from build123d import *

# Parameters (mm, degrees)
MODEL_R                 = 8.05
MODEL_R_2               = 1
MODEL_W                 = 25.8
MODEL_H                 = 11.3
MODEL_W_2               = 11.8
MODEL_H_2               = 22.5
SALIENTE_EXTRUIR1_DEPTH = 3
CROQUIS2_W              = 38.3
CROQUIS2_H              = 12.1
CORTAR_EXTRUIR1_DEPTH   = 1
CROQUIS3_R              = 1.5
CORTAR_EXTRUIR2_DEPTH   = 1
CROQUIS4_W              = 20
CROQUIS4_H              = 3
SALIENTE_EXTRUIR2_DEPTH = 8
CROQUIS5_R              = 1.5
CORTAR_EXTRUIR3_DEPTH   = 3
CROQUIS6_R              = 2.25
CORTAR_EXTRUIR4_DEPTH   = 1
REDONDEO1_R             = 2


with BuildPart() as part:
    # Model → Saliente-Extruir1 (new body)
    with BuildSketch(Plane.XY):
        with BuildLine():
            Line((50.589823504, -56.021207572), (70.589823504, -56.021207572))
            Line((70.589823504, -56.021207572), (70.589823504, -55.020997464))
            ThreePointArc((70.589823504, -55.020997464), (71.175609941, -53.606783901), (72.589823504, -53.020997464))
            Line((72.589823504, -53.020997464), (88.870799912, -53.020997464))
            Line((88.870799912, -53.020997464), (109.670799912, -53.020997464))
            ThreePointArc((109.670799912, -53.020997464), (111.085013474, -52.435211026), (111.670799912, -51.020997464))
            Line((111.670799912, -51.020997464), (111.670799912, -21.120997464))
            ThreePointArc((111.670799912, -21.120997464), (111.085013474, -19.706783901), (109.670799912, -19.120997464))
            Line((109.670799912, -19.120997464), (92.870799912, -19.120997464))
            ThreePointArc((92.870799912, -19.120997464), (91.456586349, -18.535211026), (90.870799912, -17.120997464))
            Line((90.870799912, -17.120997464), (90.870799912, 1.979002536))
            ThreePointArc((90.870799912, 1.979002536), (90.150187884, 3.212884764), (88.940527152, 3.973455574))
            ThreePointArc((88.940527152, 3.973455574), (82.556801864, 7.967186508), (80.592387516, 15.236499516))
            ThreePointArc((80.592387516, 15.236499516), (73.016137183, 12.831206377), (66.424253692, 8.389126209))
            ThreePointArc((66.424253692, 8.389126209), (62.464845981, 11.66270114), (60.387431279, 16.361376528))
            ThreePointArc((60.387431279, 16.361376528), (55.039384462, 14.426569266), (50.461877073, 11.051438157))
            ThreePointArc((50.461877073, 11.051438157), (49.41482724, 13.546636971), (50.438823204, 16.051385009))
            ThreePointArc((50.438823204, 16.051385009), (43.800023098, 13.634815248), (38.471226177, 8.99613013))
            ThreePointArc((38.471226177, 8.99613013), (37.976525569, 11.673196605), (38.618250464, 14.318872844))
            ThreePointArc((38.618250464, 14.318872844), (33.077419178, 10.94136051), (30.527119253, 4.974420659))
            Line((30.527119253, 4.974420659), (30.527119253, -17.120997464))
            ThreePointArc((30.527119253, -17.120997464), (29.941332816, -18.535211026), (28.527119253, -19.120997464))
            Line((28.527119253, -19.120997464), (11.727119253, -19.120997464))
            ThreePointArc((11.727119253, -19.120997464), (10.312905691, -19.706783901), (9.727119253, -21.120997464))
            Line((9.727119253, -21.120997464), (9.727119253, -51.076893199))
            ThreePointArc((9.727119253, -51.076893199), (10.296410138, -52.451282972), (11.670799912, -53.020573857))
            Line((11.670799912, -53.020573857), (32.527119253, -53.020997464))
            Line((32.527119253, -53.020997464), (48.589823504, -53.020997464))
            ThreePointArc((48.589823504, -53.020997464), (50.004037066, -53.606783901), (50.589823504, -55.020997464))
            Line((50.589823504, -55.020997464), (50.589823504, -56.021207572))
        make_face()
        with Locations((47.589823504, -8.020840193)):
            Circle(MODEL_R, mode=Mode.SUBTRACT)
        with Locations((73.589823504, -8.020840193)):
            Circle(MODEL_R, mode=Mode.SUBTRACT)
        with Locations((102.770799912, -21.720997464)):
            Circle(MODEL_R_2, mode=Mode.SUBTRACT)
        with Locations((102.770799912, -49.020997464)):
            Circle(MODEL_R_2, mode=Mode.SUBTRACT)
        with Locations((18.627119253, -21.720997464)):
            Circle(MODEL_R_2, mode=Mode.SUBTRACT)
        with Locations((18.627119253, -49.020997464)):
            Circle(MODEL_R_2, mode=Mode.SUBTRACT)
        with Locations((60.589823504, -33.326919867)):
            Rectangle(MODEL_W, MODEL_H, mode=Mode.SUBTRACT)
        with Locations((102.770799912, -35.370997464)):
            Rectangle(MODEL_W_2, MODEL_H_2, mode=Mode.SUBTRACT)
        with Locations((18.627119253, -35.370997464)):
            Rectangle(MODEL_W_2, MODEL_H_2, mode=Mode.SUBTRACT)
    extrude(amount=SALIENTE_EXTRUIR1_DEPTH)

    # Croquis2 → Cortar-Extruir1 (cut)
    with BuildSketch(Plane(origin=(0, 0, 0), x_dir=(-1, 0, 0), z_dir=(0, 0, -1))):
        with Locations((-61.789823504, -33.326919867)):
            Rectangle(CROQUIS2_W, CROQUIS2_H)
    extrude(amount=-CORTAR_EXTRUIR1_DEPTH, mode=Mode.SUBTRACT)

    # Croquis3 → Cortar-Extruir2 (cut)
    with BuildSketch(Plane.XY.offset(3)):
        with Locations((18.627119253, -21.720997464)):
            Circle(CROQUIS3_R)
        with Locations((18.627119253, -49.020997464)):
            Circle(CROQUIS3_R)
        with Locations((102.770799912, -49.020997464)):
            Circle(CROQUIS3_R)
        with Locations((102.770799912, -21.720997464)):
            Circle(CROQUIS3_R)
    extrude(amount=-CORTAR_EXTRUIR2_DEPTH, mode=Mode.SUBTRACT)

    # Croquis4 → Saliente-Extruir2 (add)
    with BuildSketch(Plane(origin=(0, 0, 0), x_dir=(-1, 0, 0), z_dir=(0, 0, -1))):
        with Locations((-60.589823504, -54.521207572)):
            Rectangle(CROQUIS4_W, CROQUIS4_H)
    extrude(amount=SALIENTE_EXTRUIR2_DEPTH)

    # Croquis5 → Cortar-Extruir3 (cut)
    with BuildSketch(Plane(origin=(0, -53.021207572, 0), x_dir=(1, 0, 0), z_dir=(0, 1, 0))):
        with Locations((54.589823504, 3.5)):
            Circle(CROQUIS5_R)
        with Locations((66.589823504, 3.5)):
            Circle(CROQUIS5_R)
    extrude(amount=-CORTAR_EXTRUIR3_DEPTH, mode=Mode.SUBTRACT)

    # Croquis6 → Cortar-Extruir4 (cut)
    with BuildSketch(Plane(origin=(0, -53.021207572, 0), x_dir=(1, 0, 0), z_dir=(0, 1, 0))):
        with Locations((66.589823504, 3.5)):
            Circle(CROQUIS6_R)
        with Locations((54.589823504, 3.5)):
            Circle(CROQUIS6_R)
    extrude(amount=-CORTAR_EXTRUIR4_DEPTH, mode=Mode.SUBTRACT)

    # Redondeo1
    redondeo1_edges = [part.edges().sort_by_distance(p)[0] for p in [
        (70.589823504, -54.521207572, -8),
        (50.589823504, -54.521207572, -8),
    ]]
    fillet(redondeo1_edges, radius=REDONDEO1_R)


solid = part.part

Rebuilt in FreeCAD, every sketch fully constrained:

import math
import FreeCAD as App
import Part
import Sketcher
from FreeCAD import Vector
Q = App.Units.Quantity


def edges_at(feature, points):
    """Names of the edges that pass closest to the given points."""
    edges = feature.Shape.Edges
    near = lambda p: min(range(len(edges)), key=lambda i: edges[i].distToShape(Part.Vertex(*p))[0])
    return sorted({f"Edge{near(p) + 1}" for p in points})


def add_polygon(sketch, points):
    """Adds a closed chain of lines whose ends are joined by coincident constraints."""
    first, n = sketch.GeometryCount, len(points)
    for a, b in zip(points, points[1:] + points[:1]):
        sketch.addGeometry(Part.LineSegment(App.Vector(*a, 0), App.Vector(*b, 0)), False)
    for i in range(n):
        sketch.addConstraint(Sketcher.Constraint("Coincident", first + i, 2, first + (i + 1) % n, 1))

doc = App.newDocument("Part")
params = doc.addObject("Spreadsheet::Sheet", "Params")
for row, (alias, value) in enumerate([
    ("sketch1_diameter", "2 mm"),
    ("sketch1_radius", "2 mm"),
    ("sketch1_radius2", "3 mm"),
    ("sketch1_diameter2", "16.1 mm"),
    ("sketch1_width", "20 mm"),
    ("pad1_length", "3 mm"),
    ("sketch2_width", "38.3 mm"),
    ("sketch2_height", "12.1 mm"),
    ("pocket1_length", "1 mm"),
    ("sketch3_diameter", "3 mm"),
    ("pocket2_length", "1 mm"),
    ("sketch4_width", "20 mm"),
    ("sketch4_height", "3 mm"),
    ("pad2_length", "8 mm"),
    ("sketch5_diameter", "3 mm"),
    ("pocket3_length", "3 mm"),
    ("sketch6_diameter", "4.5 mm"),
    ("pocket4_length", "1 mm"),
    ("fillet_radius", "2 mm"),
], start=1):
    params.set(f"A{row}", alias)
    params.set(f"B{row}", "=" + value)
    params.setAlias(f"B{row}", alias)

body = doc.addObject("PartDesign::Body", "Body")

# Sketch on XY plane
sketch1 = body.newObject("Sketcher::SketchObject", "Sketch")
sketch1.AttachmentSupport = (doc.getObject("XY_Plane"), [""])
sketch1.MapMode = "FlatFace"
sketch1.addGeometry(Part.LineSegment(Vector(50.6, -56, 0), Vector(70.6, -56, 0)), False)  # 0
sketch1.addGeometry(Part.LineSegment(Vector(70.6, -56, 0), Vector(70.6, -55, 0)), False)  # 1
sketch1.addGeometry(Part.ArcOfCircle(Part.Circle(Vector(72.6, -55, 0), Vector(0, 0, 1), 2), math.radians(90), math.radians(180)), False)  # 2
sketch1.addGeometry(Part.LineSegment(Vector(72.6, -53, 0), Vector(109.7, -53, 0)), False)  # 3
sketch1.addGeometry(Part.ArcOfCircle(Part.Circle(Vector(109.7, -51, 0), Vector(0, 0, 1), 2), math.radians(-90), math.radians(0)), False)  # 4
sketch1.addGeometry(Part.LineSegment(Vector(111.7, -51, 0), Vector(111.7, -21.1, 0)), False)  # 5
sketch1.addGeometry(Part.ArcOfCircle(Part.Circle(Vector(109.7, -21.1, 0), Vector(0, 0, 1), 2), math.radians(0), math.radians(90)), False)  # 6
sketch1.addGeometry(Part.LineSegment(Vector(109.7, -19.1, 0), Vector(92.9, -19.1, 0)), False)  # 7
sketch1.addGeometry(Part.ArcOfCircle(Part.Circle(Vector(92.9, -17.1, 0), Vector(0, 0, 1), 2), math.radians(180), math.radians(270)), False)  # 8
sketch1.addGeometry(Part.LineSegment(Vector(90.9, -17.1, 0), Vector(90.9, 2, 0)), False)  # 9
sketch1.addGeometry(Part.ArcOfCircle(Part.Circle(Vector(88, 1.1, 0), Vector(0, 0, 1), 3), math.radians(17), math.radians(72)), False)  # 10
sketch1.addGeometry(Part.ArcOfCircle(Part.Circle(Vector(90.8, 14.1, 0), Vector(0, 0, 1), 10.3), math.radians(174), math.radians(259)), False)  # 11
sketch1.addGeometry(Part.ArcOfCircle(Part.Circle(Vector(85.2, -12.3, 0), Vector(0, 0, 1), 27.9), math.radians(99), math.radians(132)), False)  # 12
sketch1.addGeometry(Part.ArcOfCircle(Part.Circle(Vector(71.4, 18.4, 0), Vector(0, 0, 1), 11.2), math.radians(-169), math.radians(-116)), False)  # 13
sketch1.addGeometry(Part.ArcOfCircle(Part.Circle(Vector(64.4, -3, 0), Vector(0, 0, 1), 19.8), math.radians(102), math.radians(135)), False)  # 14
sketch1.addGeometry(Part.ArcOfCircle(Part.Circle(Vector(53, 13.6, 0), Vector(0, 0, 1), 3.5), math.radians(135), math.radians(225)), False)  # 15
sketch1.addGeometry(Part.ArcOfCircle(Part.Circle(Vector(53.6, -3, 0), Vector(0, 0, 1), 19.3), math.radians(99), math.radians(142)), False)  # 16
sketch1.addGeometry(Part.ArcOfCircle(Part.Circle(Vector(44.5, 11.5, 0), Vector(0, 0, 1), 6.5), math.radians(154), math.radians(203)), False)  # 17
sketch1.addGeometry(Part.ArcOfCircle(Part.Circle(Vector(41.1, 4, 0), Vector(0, 0, 1), 10.6), math.radians(104), math.radians(175)), False)  # 18
sketch1.addGeometry(Part.LineSegment(Vector(30.5, 5, 0), Vector(30.5, -17.1, 0)), False)  # 19
sketch1.addGeometry(Part.ArcOfCircle(Part.Circle(Vector(28.5, -17.1, 0), Vector(0, 0, 1), 2), math.radians(-90), math.radians(0)), False)  # 20
sketch1.addGeometry(Part.LineSegment(Vector(28.5, -19.1, 0), Vector(11.7, -19.1, 0)), False)  # 21
sketch1.addGeometry(Part.ArcOfCircle(Part.Circle(Vector(11.7, -21.1, 0), Vector(0, 0, 1), 2), math.radians(90), math.radians(180)), False)  # 22
sketch1.addGeometry(Part.LineSegment(Vector(9.7, -21.1, 0), Vector(9.7, -51.1, 0)), False)  # 23
sketch1.addGeometry(Part.ArcOfCircle(Part.Circle(Vector(11.7, -51.1, 0), Vector(0, 0, 1), 1.9), math.radians(-180), math.radians(-90)), False)  # 24
sketch1.addGeometry(Part.LineSegment(Vector(11.7, -53, 0), Vector(32.5, -53, 0)), False)  # 25
sketch1.addGeometry(Part.LineSegment(Vector(32.5, -53, 0), Vector(48.6, -53, 0)), False)  # 26
sketch1.addGeometry(Part.ArcOfCircle(Part.Circle(Vector(48.6, -55, 0), Vector(0, 0, 1), 2), math.radians(0), math.radians(90)), False)  # 27
sketch1.addGeometry(Part.LineSegment(Vector(50.6, -55, 0), Vector(50.6, -56, 0)), False)  # 28
sketch1.addGeometry(Part.Circle(Vector(18.6, -49, 0), Vector(0, 0, 1), 1), False)  # 29
add_polygon(sketch1, [(24.5, -46.6), (12.7, -46.6), (12.7, -24.1), (24.5, -24.1)])  # lines 30-33
add_polygon(sketch1, [(73.5, -39), (47.7, -39), (47.7, -27.7), (73.5, -27.7)])  # lines 34-37
sketch1.addGeometry(Part.Circle(Vector(102.8, -49, 0), Vector(0, 0, 1), 1), False)  # 38
add_polygon(sketch1, [(108.7, -46.6), (96.9, -46.6), (96.9, -24.1), (108.7, -24.1)])  # lines 39-42
sketch1.addGeometry(Part.Circle(Vector(18.6, -21.7, 0), Vector(0, 0, 1), 1), False)  # 43
sketch1.addGeometry(Part.Circle(Vector(47.6, -8, 0), Vector(0, 0, 1), 8.1), False)  # 44
sketch1.addGeometry(Part.Circle(Vector(102.8, -21.7, 0), Vector(0, 0, 1), 1), False)  # 45
sketch1.addGeometry(Part.Circle(Vector(73.6, -8, 0), Vector(0, 0, 1), 8.1), False)  # 46
sketch1.addConstraint([
    Sketcher.Constraint("Coincident", 0, 2, 1, 1),
    Sketcher.Constraint("Tangent", 1, 2, 2, 2),
    Sketcher.Constraint("Tangent", 2, 1, 3, 1),
    Sketcher.Constraint("Tangent", 3, 2, 4, 1),
    Sketcher.Constraint("Tangent", 4, 2, 5, 1),
    Sketcher.Constraint("Tangent", 5, 2, 6, 1),
    Sketcher.Constraint("Tangent", 6, 2, 7, 1),
    Sketcher.Constraint("Tangent", 7, 2, 8, 2),
    Sketcher.Constraint("Tangent", 8, 1, 9, 1),
    Sketcher.Constraint("Coincident", 9, 2, 10, 1),
    Sketcher.Constraint("Coincident", 10, 2, 11, 2),
    Sketcher.Constraint("Coincident", 11, 1, 12, 1),
    Sketcher.Constraint("Coincident", 12, 2, 13, 2),
    Sketcher.Constraint("Coincident", 13, 1, 14, 1),
    Sketcher.Constraint("Coincident", 14, 2, 15, 2),
    Sketcher.Constraint("Coincident", 15, 1, 16, 1),
    Sketcher.Constraint("Coincident", 16, 2, 17, 2),
    Sketcher.Constraint("Coincident", 17, 1, 18, 1),
    Sketcher.Constraint("Coincident", 18, 2, 19, 1),
    Sketcher.Constraint("Tangent", 19, 2, 20, 2),
    Sketcher.Constraint("Tangent", 20, 1, 21, 1),
    Sketcher.Constraint("Tangent", 21, 2, 22, 1),
    Sketcher.Constraint("Tangent", 22, 2, 23, 1),
    Sketcher.Constraint("Tangent", 23, 2, 24, 1),
    Sketcher.Constraint("Coincident", 24, 2, 25, 1),
    Sketcher.Constraint("Coincident", 25, 2, 26, 1),
    Sketcher.Constraint("Tangent", 26, 2, 27, 2),
    Sketcher.Constraint("Tangent", 27, 1, 28, 1),
    Sketcher.Constraint("Coincident", 28, 2, 0, 1),
    Sketcher.Constraint("Horizontal", 0),
    Sketcher.Constraint("Vertical", 1),
    Sketcher.Constraint("Horizontal", 3),
    Sketcher.Constraint("Vertical", 5),
    Sketcher.Constraint("Horizontal", 7),
    Sketcher.Constraint("Vertical", 9),
    Sketcher.Constraint("Vertical", 19),
    Sketcher.Constraint("Horizontal", 21),
    Sketcher.Constraint("Vertical", 23),
    Sketcher.Constraint("Horizontal", 26),
    Sketcher.Constraint("Vertical", 28),
    Sketcher.Constraint("Horizontal", 30),
    Sketcher.Constraint("Vertical", 31),
    Sketcher.Constraint("Horizontal", 32),
    Sketcher.Constraint("Vertical", 33),
    Sketcher.Constraint("Horizontal", 34),
    Sketcher.Constraint("Vertical", 35),
    Sketcher.Constraint("Horizontal", 36),
    Sketcher.Constraint("Vertical", 37),
    Sketcher.Constraint("Horizontal", 39),
    Sketcher.Constraint("Vertical", 40),
    Sketcher.Constraint("Horizontal", 41),
    Sketcher.Constraint("Vertical", 42),
    Sketcher.Constraint("Equal", 2, 4),
    Sketcher.Constraint("Equal", 4, 6),
    Sketcher.Constraint("Equal", 6, 8),
    Sketcher.Constraint("Equal", 8, 20),
    Sketcher.Constraint("Equal", 20, 22),
    Sketcher.Constraint("Equal", 22, 27),
    Sketcher.Constraint("Equal", 29, 38),
    Sketcher.Constraint("Equal", 38, 43),
    Sketcher.Constraint("Equal", 43, 45),
    Sketcher.Constraint("Equal", 44, 46),
    Sketcher.Constraint("Horizontal", 8, 3, 20, 3),
    Sketcher.Constraint("Horizontal", 2, 3, 27, 3),
    Sketcher.Constraint("Horizontal", 29, 3, 38, 3),
    Sketcher.Constraint("Horizontal", 43, 3, 45, 3),
    Sketcher.Constraint("Horizontal", 44, 3, 46, 3),
    Sketcher.Constraint("Horizontal", 18, 3, 10, 2),
    Sketcher.Constraint("Horizontal", 33, 2, 39, 2),
    Sketcher.Constraint("Horizontal", 32, 2, 40, 2),
    Sketcher.Constraint("Vertical", 29, 3, 43, 3),
    Sketcher.Constraint("Vertical", 38, 3, 45, 3),
    Sketcher.Constraint("Equal", 7, 21),
    Sketcher.Constraint("Equal", 32, 39),
    Sketcher.Constraint("Diameter", 29, Q("2 mm")),
    Sketcher.Constraint("Radius", 2, Q("2 mm")),
    Sketcher.Constraint("Radius", 10, Q("3 mm")),
    Sketcher.Constraint("Diameter", 44, Q("16.1 mm")),
    Sketcher.Constraint("DistanceX", 0, 1, 0, 2, Q("20 mm")),
    Sketcher.Constraint("DistanceX", 7, 2, 7, 1, Q("16.8 mm")),
    Sketcher.Constraint("DistanceX", 30, 2, 30, 1, Q("11.8 mm")),
    Sketcher.Constraint("DistanceX", 34, 2, 34, 1, Q("25.8 mm")),
    Sketcher.Constraint("DistanceY", 5, 1, 5, 2, Q("29.9 mm")),
    Sketcher.Constraint("DistanceY", 9, 1, 9, 2, Q("19.1 mm")),
    Sketcher.Constraint("DistanceY", 31, 1, 31, 2, Q("22.5 mm")),
    Sketcher.Constraint("DistanceY", 35, 1, 35, 2, Q("11.3 mm")),
    Sketcher.Constraint("Radius", 13, Q("11.18034 mm")),
    Sketcher.Constraint("Radius", 14, Q("19.801309 mm")),
    Sketcher.Constraint("Radius", 24, Q("1.943681 mm")),
    Sketcher.Constraint("Radius", 11, Q("10.307764 mm")),
    Sketcher.Constraint("Radius", 12, Q("27.930966 mm")),
    Sketcher.Constraint("Radius", 15, Q("3.535534 mm")),
    Sketcher.Constraint("Radius", 16, Q("19.349935 mm")),
    Sketcher.Constraint("Radius", 17, Q("6.519202 mm")),
    Sketcher.Constraint("Radius", 18, Q("10.644704 mm")),
    Sketcher.Constraint("DistanceY", 1, 1, 1, 2, Q("1.00021 mm")),
    Sketcher.Constraint("DistanceY", 19, 2, 19, 1, Q("22.095418 mm")),
    Sketcher.Constraint("DistanceX", -1, 1, 4, 3, Q("109.6708 mm")),
    Sketcher.Constraint("DistanceY", 12, 3, -1, 1, Q("12.316798 mm")),
    Sketcher.Constraint("DistanceX", -1, 1, 24, 3, Q("11.6708 mm")),
    Sketcher.Constraint("DistanceX", -1, 1, 38, 3, Q("102.7708 mm")),
    Sketcher.Constraint("DistanceY", -1, 1, 11, 1, Q("15.2365 mm")),
    Sketcher.Constraint("DistanceX", -1, 1, 24, 2, Q("11.6708 mm")),
    Sketcher.Constraint("DistanceX", -1, 1, 39, 2, Q("96.8708 mm")),
    Sketcher.Constraint("Distance", 25, Q("20.856319 mm")),
    Sketcher.Constraint("DistanceX", 3, 1, 3, 2, Q("37.080976 mm")),
    Sketcher.Constraint("DistanceY", 23, 2, 23, 1, Q("29.955896 mm")),
    Sketcher.Constraint("DistanceX", -1, 1, 11, 3, Q("90.83787 mm")),
    Sketcher.Constraint("DistanceY", -1, 1, 15, 3, Q("13.562939 mm")),
    Sketcher.Constraint("DistanceY", 16, 3, -1, 1, Q("3.034119 mm")),
    Sketcher.Constraint("DistanceX", -1, 1, 29, 3, Q("18.627119 mm")),
    Sketcher.Constraint("DistanceY", 44, 3, -1, 1, Q("8.02084 mm")),
    Sketcher.Constraint("DistanceX", -1, 1, 13, 1, Q("60.387431 mm")),
    Sketcher.Constraint("DistanceY", -1, 1, 14, 2, Q("11.051438 mm")),
    Sketcher.Constraint("DistanceY", -1, 1, 16, 2, Q("8.99613 mm")),
    Sketcher.Constraint("DistanceX", -1, 1, 17, 1, Q("38.61825 mm")),
    Sketcher.Constraint("DistanceY", -1, 1, 18, 2, Q("4.974421 mm")),
    Sketcher.Constraint("DistanceX", -1, 1, 30, 2, Q("12.727119 mm")),
    Sketcher.Constraint("DistanceY", 34, 2, -1, 1, Q("38.97692 mm")),
    Sketcher.Constraint("DistanceX", -1, 1, 10, 3, Q("87.994466 mm")),
    Sketcher.Constraint("DistanceY", -1, 1, 11, 3, Q("14.105094 mm")),
    Sketcher.Constraint("DistanceX", -1, 1, 13, 3, Q("71.378093 mm")),
    Sketcher.Constraint("DistanceY", -1, 1, 13, 3, Q("18.412074 mm")),
    Sketcher.Constraint("DistanceX", -1, 1, 14, 3, Q("64.379976 mm")),
    Sketcher.Constraint("DistanceX", -1, 1, 16, 3, Q("53.626856 mm")),
    Sketcher.Constraint("DistanceY", 29, 3, -1, 1, Q("49.020997 mm")),
    Sketcher.Constraint("DistanceY", 43, 3, -1, 1, Q("21.720997 mm")),
    Sketcher.Constraint("DistanceX", -1, 1, 44, 3, Q("47.589824 mm")),
    Sketcher.Constraint("DistanceX", -1, 1, 46, 3, Q("73.589824 mm")),
    Sketcher.Constraint("DistanceY", 30, 2, -1, 1, Q("46.620997 mm")),
    Sketcher.Constraint("DistanceX", -1, 1, 34, 2, Q("47.689824 mm")),
])
sketch1.setExpression("Constraints[86]", "Params.sketch1_diameter")
sketch1.setExpression("Constraints[87]", "Params.sketch1_radius")
sketch1.setExpression("Constraints[88]", "Params.sketch1_radius2")
sketch1.setExpression("Constraints[89]", "Params.sketch1_diameter2")
sketch1.setExpression("Constraints[90]", "Params.sketch1_width")
pad1 = body.newObject("PartDesign::Pad", "Pad")
pad1.Profile = sketch1
pad1.setExpression("Length", "Params.pad1_length")

# Sketch on XY plane
sketch2 = body.newObject("Sketcher::SketchObject", "Sketch001")
sketch2.AttachmentSupport = (doc.getObject("XY_Plane"), [""])
sketch2.MapMode = "FlatFace"
add_polygon(sketch2, [(81, -27), (81, -39), (43, -39), (43, -27)])  # lines 0-3
sketch2.addConstraint([
    Sketcher.Constraint("Vertical", 0),
    Sketcher.Constraint("Horizontal", 1),
    Sketcher.Constraint("Vertical", 2),
    Sketcher.Constraint("Horizontal", 3),
    Sketcher.Constraint("DistanceX", 1, 2, 1, 1, Q("38.3 mm")),
    Sketcher.Constraint("DistanceY", 0, 2, 0, 1, Q("12.1 mm")),
    Sketcher.Constraint("DistanceY", 0, 2, -1, 1, Q("39.37692 mm")),
    Sketcher.Constraint("DistanceX", -1, 1, 0, 2, Q("80.939824 mm")),
])
sketch2.setExpression("Constraints[8]", "Params.sketch2_width")
sketch2.setExpression("Constraints[9]", "Params.sketch2_height")
pocket1 = body.newObject("PartDesign::Pocket", "Pocket")
pocket1.Profile = sketch2
pocket1.setExpression("Length", "Params.pocket1_length")
pocket1.Reversed = True

# Sketch on XY plane
sketch3 = body.newObject("Sketcher::SketchObject", "Sketch002")
sketch3.AttachmentSupport = (doc.getObject("XY_Plane"), [""])
sketch3.MapMode = "FlatFace"
sketch3.AttachmentOffset = App.Placement(Vector(0, 0, 3), App.Rotation())
sketch3.addGeometry([
    Part.Circle(Vector(18.6, -21.7, 0), Vector(0, 0, 1), 1.5),
    Part.Circle(Vector(18.6, -49, 0), Vector(0, 0, 1), 1.5),
    Part.Circle(Vector(102.8, -49, 0), Vector(0, 0, 1), 1.5),
    Part.Circle(Vector(102.8, -21.7, 0), Vector(0, 0, 1), 1.5),
], False)
sketch3.addConstraint([
    Sketcher.Constraint("Equal", 0, 1),
    Sketcher.Constraint("Equal", 1, 2),
    Sketcher.Constraint("Equal", 2, 3),
    Sketcher.Constraint("Horizontal", 1, 3, 2, 3),
    Sketcher.Constraint("Horizontal", 0, 3, 3, 3),
    Sketcher.Constraint("Vertical", 0, 3, 1, 3),
    Sketcher.Constraint("Vertical", 2, 3, 3, 3),
    Sketcher.Constraint("Diameter", 0, Q("3 mm")),
    Sketcher.Constraint("DistanceY", 1, 3, 0, 3, Q("27.3 mm")),
    Sketcher.Constraint("DistanceX", -1, 1, 2, 3, Q("102.7708 mm")),
    Sketcher.Constraint("DistanceX", -1, 1, 0, 3, Q("18.627119 mm")),
    Sketcher.Constraint("DistanceY", 0, 3, -1, 1, Q("21.720997 mm")),
])
sketch3.setExpression("Constraints[7]", "Params.sketch3_diameter")
pocket2 = body.newObject("PartDesign::Pocket", "Pocket001")
pocket2.Profile = sketch3
pocket2.setExpression("Length", "Params.pocket2_length")

# Sketch on XY plane
sketch4 = body.newObject("Sketcher::SketchObject", "Sketch003")
sketch4.AttachmentSupport = (doc.getObject("XY_Plane"), [""])
sketch4.MapMode = "FlatFace"
add_polygon(sketch4, [(70.6, -53), (70.6, -56), (50.6, -56), (50.6, -53)])  # lines 0-3
sketch4.addConstraint([
    Sketcher.Constraint("Vertical", 0),
    Sketcher.Constraint("Horizontal", 1),
    Sketcher.Constraint("Vertical", 2),
    Sketcher.Constraint("Horizontal", 3),
    Sketcher.Constraint("DistanceX", 1, 2, 1, 1, Q("20 mm")),
    Sketcher.Constraint("DistanceY", 0, 2, 0, 1, Q("3 mm")),
    Sketcher.Constraint("DistanceX", -1, 1, 0, 2, Q("70.589824 mm")),
    Sketcher.Constraint("DistanceY", 0, 2, -1, 1, Q("56.021208 mm")),
])
sketch4.setExpression("Constraints[8]", "Params.sketch4_width")
sketch4.setExpression("Constraints[9]", "Params.sketch4_height")
pad2 = body.newObject("PartDesign::Pad", "Pad001")
pad2.Profile = sketch4
pad2.setExpression("Length", "Params.pad2_length")
pad2.Reversed = True

# Sketch on XZ plane
sketch5 = body.newObject("Sketcher::SketchObject", "Sketch004")
sketch5.AttachmentSupport = (doc.getObject("XZ_Plane"), [""])
sketch5.MapMode = "FlatFace"
sketch5.AttachmentOffset = App.Placement(Vector(0, 0, 53.021208), App.Rotation())
sketch5.addGeometry([
    Part.Circle(Vector(54.6, -3.5, 0), Vector(0, 0, 1), 1.5),
    Part.Circle(Vector(66.6, -3.5, 0), Vector(0, 0, 1), 1.5),
], False)
sketch5.addConstraint([
    Sketcher.Constraint("Equal", 0, 1),
    Sketcher.Constraint("Horizontal", 0, 3, 1, 3),
    Sketcher.Constraint("Diameter", 0, Q("3 mm")),
    Sketcher.Constraint("DistanceX", 0, 3, 1, 3, Q("12 mm")),
    Sketcher.Constraint("DistanceY", 0, 3, -1, 1, Q("3.5 mm")),
    Sketcher.Constraint("DistanceX", -1, 1, 0, 3, Q("54.589824 mm")),
])
sketch5.setExpression("Constraints[2]", "Params.sketch5_diameter")
pocket3 = body.newObject("PartDesign::Pocket", "Pocket002")
pocket3.Profile = sketch5
pocket3.setExpression("Length", "Params.pocket3_length")
pocket3.Reversed = True

# Sketch on XZ plane
sketch6 = body.newObject("Sketcher::SketchObject", "Sketch005")
sketch6.AttachmentSupport = (doc.getObject("XZ_Plane"), [""])
sketch6.MapMode = "FlatFace"
sketch6.AttachmentOffset = App.Placement(Vector(0, 0, 53.021208), App.Rotation())
sketch6.addGeometry([
    Part.Circle(Vector(66.6, -3.5, 0), Vector(0, 0, 1), 2.2),
    Part.Circle(Vector(54.6, -3.5, 0), Vector(0, 0, 1), 2.2),
], False)
sketch6.addConstraint([
    Sketcher.Constraint("Equal", 0, 1),
    Sketcher.Constraint("Horizontal", 0, 3, 1, 3),
    Sketcher.Constraint("Diameter", 0, Q("4.5 mm")),
    Sketcher.Constraint("DistanceX", 1, 3, 0, 3, Q("12 mm")),
    Sketcher.Constraint("DistanceY", 0, 3, -1, 1, Q("3.5 mm")),
    Sketcher.Constraint("DistanceX", -1, 1, 0, 3, Q("66.589824 mm")),
])
sketch6.setExpression("Constraints[2]", "Params.sketch6_diameter")
pocket4 = body.newObject("PartDesign::Pocket", "Pocket003")
pocket4.Profile = sketch6
pocket4.setExpression("Length", "Params.pocket4_length")
pocket4.Reversed = True
doc.recompute()

fillet = body.newObject("PartDesign::Fillet", "Fillet")
fillet.Base = (pocket4, edges_at(pocket4, [(70.59, -54.521, -8), (50.59, -54.521, -8)]))
fillet.setExpression("Radius", "Params.fillet_radius")

doc.recompute()
